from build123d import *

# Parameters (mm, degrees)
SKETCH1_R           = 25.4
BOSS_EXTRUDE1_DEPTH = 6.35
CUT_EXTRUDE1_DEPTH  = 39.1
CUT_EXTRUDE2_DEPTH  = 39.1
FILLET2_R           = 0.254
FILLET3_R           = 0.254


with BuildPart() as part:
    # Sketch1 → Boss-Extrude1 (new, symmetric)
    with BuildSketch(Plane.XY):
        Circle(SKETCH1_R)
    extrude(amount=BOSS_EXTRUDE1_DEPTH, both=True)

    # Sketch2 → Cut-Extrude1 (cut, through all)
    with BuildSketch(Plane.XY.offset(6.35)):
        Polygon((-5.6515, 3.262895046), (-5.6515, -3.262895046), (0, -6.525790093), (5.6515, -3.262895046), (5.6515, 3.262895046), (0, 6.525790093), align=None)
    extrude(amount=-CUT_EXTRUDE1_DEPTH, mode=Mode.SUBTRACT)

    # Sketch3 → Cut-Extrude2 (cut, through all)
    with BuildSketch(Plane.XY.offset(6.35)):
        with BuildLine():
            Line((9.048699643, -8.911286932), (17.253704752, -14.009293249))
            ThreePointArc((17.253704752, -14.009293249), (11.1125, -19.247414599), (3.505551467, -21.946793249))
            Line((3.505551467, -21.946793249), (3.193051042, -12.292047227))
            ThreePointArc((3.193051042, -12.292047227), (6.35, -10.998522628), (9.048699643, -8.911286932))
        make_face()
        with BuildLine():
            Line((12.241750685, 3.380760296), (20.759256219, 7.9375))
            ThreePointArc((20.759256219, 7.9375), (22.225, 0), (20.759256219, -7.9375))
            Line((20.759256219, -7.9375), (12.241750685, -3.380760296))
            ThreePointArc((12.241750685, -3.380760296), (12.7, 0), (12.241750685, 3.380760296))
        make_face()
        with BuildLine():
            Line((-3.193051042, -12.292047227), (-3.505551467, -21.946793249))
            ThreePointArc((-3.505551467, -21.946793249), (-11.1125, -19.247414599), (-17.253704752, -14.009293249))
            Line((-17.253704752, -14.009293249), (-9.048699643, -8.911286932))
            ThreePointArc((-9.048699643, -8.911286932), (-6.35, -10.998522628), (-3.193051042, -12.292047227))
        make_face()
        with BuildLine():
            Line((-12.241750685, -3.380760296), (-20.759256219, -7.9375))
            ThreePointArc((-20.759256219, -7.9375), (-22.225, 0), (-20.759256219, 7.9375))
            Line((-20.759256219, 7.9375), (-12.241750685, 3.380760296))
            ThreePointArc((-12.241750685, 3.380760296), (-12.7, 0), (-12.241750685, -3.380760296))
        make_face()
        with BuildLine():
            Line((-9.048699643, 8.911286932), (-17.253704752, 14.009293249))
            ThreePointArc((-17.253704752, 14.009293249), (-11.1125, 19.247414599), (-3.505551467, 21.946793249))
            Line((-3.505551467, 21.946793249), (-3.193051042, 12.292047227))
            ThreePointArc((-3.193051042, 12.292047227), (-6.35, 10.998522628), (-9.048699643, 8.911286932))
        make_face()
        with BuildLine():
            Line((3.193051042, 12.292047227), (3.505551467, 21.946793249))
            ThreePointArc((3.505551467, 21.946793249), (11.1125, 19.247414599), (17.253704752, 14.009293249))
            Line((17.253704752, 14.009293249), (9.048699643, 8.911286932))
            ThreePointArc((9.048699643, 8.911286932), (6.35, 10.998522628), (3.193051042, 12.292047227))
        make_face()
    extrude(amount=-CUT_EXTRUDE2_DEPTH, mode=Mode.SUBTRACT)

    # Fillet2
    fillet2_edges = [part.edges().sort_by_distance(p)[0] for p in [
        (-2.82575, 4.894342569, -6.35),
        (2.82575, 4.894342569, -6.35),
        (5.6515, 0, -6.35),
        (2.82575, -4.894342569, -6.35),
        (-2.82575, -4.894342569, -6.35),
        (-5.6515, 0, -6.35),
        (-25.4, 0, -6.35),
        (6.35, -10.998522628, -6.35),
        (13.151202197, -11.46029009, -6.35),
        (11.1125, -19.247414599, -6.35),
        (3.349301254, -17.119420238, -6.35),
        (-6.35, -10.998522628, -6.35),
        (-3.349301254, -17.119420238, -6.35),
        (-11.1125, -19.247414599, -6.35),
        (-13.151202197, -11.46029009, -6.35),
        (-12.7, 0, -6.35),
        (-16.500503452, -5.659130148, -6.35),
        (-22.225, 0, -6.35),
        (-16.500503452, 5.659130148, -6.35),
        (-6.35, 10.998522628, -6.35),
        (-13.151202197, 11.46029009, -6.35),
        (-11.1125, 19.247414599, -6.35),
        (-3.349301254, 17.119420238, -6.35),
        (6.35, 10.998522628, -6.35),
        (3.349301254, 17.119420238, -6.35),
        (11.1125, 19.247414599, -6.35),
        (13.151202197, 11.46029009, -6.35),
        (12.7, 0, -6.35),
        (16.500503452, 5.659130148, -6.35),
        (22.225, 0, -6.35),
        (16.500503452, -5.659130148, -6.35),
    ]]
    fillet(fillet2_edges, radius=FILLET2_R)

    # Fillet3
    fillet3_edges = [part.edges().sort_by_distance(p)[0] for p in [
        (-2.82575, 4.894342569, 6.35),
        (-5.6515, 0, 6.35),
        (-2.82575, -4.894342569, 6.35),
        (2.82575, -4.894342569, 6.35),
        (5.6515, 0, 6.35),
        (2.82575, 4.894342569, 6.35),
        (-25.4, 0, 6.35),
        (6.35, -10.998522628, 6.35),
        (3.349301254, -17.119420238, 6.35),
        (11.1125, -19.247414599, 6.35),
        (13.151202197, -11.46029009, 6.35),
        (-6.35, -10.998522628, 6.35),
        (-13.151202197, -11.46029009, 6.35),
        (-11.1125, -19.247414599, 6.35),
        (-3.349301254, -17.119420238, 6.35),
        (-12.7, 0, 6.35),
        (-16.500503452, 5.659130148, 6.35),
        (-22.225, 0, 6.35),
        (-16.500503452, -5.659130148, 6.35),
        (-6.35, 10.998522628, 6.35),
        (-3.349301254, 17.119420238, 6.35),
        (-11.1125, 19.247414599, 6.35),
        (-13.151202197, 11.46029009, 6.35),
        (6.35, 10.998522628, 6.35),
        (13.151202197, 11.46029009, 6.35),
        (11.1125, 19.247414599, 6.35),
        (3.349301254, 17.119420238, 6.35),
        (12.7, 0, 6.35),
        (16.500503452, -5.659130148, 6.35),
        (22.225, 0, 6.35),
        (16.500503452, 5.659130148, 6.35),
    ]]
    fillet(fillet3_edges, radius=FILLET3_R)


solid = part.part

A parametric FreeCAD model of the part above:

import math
import FreeCAD as App
import Part
import Sketcher

V = App.Vector
Q = App.Units.Quantity


def edges_at(feature, points):
    """Names of the edges that pass closest to the given points."""
    edges = feature.Shape.Edges
    near = lambda p: min(range(len(edges)), key=lambda i: edges[i].distToShape(Part.Vertex(*p))[0])
    return sorted({f"Edge{near(p) + 1}" for p in points})


def add_polygon(sketch, points):
    """Adds a closed chain of lines whose ends are joined by coincident constraints."""
    first, n = sketch.GeometryCount, len(points)
    for a, b in zip(points, points[1:] + points[:1]):
        sketch.addGeometry(Part.LineSegment(App.Vector(*a, 0), App.Vector(*b, 0)), False)
    for i in range(n):
        sketch.addConstraint(Sketcher.Constraint("Coincident", first + i, 2, first + (i + 1) % n, 1))

doc = App.newDocument("Part")
body = doc.addObject("PartDesign::Body", "Body")

# Sketch on XY plane
sketch1 = body.newObject("Sketcher::SketchObject", "Sketch")
sketch1.AttachmentSupport = (doc.getObject("XY_Plane"), [""])
sketch1.MapMode = "FlatFace"
sketch1.addGeometry(Part.Circle(V(0, 0, 0), V(0, 0, 1), 25.4), False)
sketch1.addConstraint([
    Sketcher.Constraint("Coincident", 0, 3, -1, 1),
    Sketcher.Constraint("Diameter", 0, Q("2 in")),
])
pad1 = body.newObject("PartDesign::Pad", "Pad")
pad1.Profile = sketch1
pad1.Length = Q("0.5 in")
pad1.Midplane = True

# Sketch on XY plane
sketch2 = body.newObject("Sketcher::SketchObject", "Sketch001")
sketch2.AttachmentSupport = (doc.getObject("XY_Plane"), [""])
sketch2.MapMode = "FlatFace"
sketch2.AttachmentOffset = App.Placement(V(0, 0, 0.25 * 25.4), App.Rotation())
add_polygon(sketch2, [(-5.6515, 3.262895), (-5.6515, -3.262895), (0, -6.52579), (5.6515, -3.262895), (5.6515, 3.262895), (0, 6.52579)])  # lines 0-5
sketch2.addConstraint([
    Sketcher.Constraint("Vertical", 0),
    Sketcher.Constraint("Vertical", 3),
    Sketcher.Constraint("Symmetric", 0, 2, 3, 2, -1, 1),
    Sketcher.Constraint("Symmetric", 1, 2, 4, 2, -1, 1),
    Sketcher.Constraint("PointOnObject", 1, 2, -2),
    Sketcher.Constraint("Parallel", 2, 5),
    Sketcher.Constraint("Horizontal", 0, 2, 2, 2),
    Sketcher.Constraint("Angle", 1, Q("-30 deg")),
    Sketcher.Constraint("DistanceX", 0, 2, 2, 2, Q("0.445 in")),
    Sketcher.Constraint("DistanceY", 0, 2, 0, 1, Q("6.52579 mm")),
])
pocket1 = body.newObject("PartDesign::Pocket", "Pocket")
pocket1.Profile = sketch2
pocket1.Type = "ThroughAll"

# Sketch on XY plane
sketch3 = body.newObject("Sketcher::SketchObject", "Sketch002")
sketch3.AttachmentSupport = (doc.getObject("XY_Plane"), [""])
sketch3.MapMode = "FlatFace"
sketch3.AttachmentOffset = App.Placement(V(0, 0, 0.25 * 25.4), App.Rotation())
sketch3.addGeometry([
    Part.LineSegment(V(17.253705, -14.009293, 0), V(9.0487, -8.911287, 0)),  # 0
    Part.ArcOfCircle(Part.Circle(V(0, 0, 0), V(0, 0, 1), 12.7), math.radians(-75.438364), math.radians(-44.561636)),  # 1
    Part.LineSegment(V(3.193051, -12.292047, 0), V(3.505551, -21.946793, 0)),  # 2
    Part.ArcOfCircle(Part.Circle(V(0, 0, 0), V(0, 0, 1), 22.225), math.radians(-80.924832), math.radians(-39.075168)),  # 3
    Part.LineSegment(V(20.759256, 7.9375, 0), V(12.241751, 3.38076, 0)),  # 4
    Part.ArcOfCircle(Part.Circle(V(0, 0, 0), V(0, 0, 1), 12.7), math.radians(-15.438364), math.radians(15.438364)),  # 5
    Part.LineSegment(V(12.241751, -3.38076, 0), V(20.759256, -7.9375, 0)),  # 6
    Part.ArcOfCircle(Part.Circle(V(0, 0, 0), V(0, 0, 1), 22.225), math.radians(-20.924832), math.radians(20.924832)),  # 7
    Part.LineSegment(V(-3.505551, -21.946793, 0), V(-3.193051, -12.292047, 0)),  # 8
    Part.ArcOfCircle(Part.Circle(V(0, 0, 0), V(0, 0, 1), 12.7), math.radians(-135.438364), math.radians(-104.561636)),  # 9
    Part.LineSegment(V(-9.0487, -8.911287, 0), V(-17.253705, -14.009293, 0)),  # 10
    Part.ArcOfCircle(Part.Circle(V(0, 0, 0), V(0, 0, 1), 22.225), math.radians(-140.924832), math.radians(-99.075168)),  # 11
    Part.LineSegment(V(-20.759256, -7.9375, 0), V(-12.241751, -3.38076, 0)),  # 12
    Part.ArcOfCircle(Part.Circle(V(0, 0, 0), V(0, 0, 1), 12.7), math.radians(164.561636), math.radians(195.438364)),  # 13
    Part.LineSegment(V(-12.241751, 3.38076, 0), V(-20.759256, 7.9375, 0)),  # 14
    Part.ArcOfCircle(Part.Circle(V(0, 0, 0), V(0, 0, 1), 22.225), math.radians(159.075168), math.radians(200.924832)),  # 15
    Part.LineSegment(V(-17.253705, 14.009293, 0), V(-9.0487, 8.911287, 0)),  # 16
    Part.ArcOfCircle(Part.Circle(V(0, 0, 0), V(0, 0, 1), 12.7), math.radians(104.561636), math.radians(135.438364)),  # 17
    Part.LineSegment(V(-3.193051, 12.292047, 0), V(-3.505551, 21.946793, 0)),  # 18
    Part.ArcOfCircle(Part.Circle(V(0, 0, 0), V(0, 0, 1), 22.225), math.radians(99.075168), math.radians(140.924832)),  # 19
    Part.LineSegment(V(3.505551, 21.946793, 0), V(3.193051, 12.292047, 0)),  # 20
    Part.ArcOfCircle(Part.Circle(V(0, 0, 0), V(0, 0, 1), 12.7), math.radians(44.561636), math.radians(75.438364)),  # 21
    Part.LineSegment(V(9.0487, 8.911287, 0), V(17.253705, 14.009293, 0)),  # 22
    Part.ArcOfCircle(Part.Circle(V(0, 0, 0), V(0, 0, 1), 22.225), math.radians(39.075168), math.radians(80.924832)),  # 23
], False)
sketch3.addConstraint([
    Sketcher.Constraint("Coincident", 0, 2, 1, 2),
    Sketcher.Constraint("Coincident", 1, 1, 2, 1),
    Sketcher.Constraint("Coincident", 2, 2, 3, 1),
    Sketcher.Constraint("Coincident", 3, 2, 0, 1),
    Sketcher.Constraint("Coincident", 4, 2, 5, 2),
    Sketcher.Constraint("Coincident", 5, 1, 6, 1),
    Sketcher.Constraint("Coincident", 6, 2, 7, 1),
    Sketcher.Constraint("Coincident", 7, 2, 4, 1),
    Sketcher.Constraint("Coincident", 8, 2, 9, 2),
    Sketcher.Constraint("Coincident", 9, 1, 10, 1),
    Sketcher.Constraint("Coincident", 10, 2, 11, 1),
    Sketcher.Constraint("Coincident", 11, 2, 8, 1),
    Sketcher.Constraint("Coincident", 12, 2, 13, 2),
    Sketcher.Constraint("Coincident", 13, 1, 14, 1),
    Sketcher.Constraint("Coincident", 14, 2, 15, 1),
    Sketcher.Constraint("Coincident", 15, 2, 12, 1),
    Sketcher.Constraint("Coincident", 16, 2, 17, 2),
    Sketcher.Constraint("Coincident", 17, 1, 18, 1),
    Sketcher.Constraint("Coincident", 18, 2, 19, 1),
    Sketcher.Constraint("Coincident", 19, 2, 16, 1),
    Sketcher.Constraint("Coincident", 20, 2, 21, 2),
    Sketcher.Constraint("Coincident", 21, 1, 22, 1),
    Sketcher.Constraint("Coincident", 22, 2, 23, 1),
    Sketcher.Constraint("Coincident", 23, 2, 20, 1),
    Sketcher.Constraint("Coincident", 1, 3, -1, 1),
    Sketcher.Constraint("Coincident", 3, 3, -1, 1),
    Sketcher.Constraint("Coincident", 5, 3, -1, 1),
    Sketcher.Constraint("Coincident", 7, 3, -1, 1),
    Sketcher.Constraint("Coincident", 9, 3, -1, 1),
    Sketcher.Constraint("Coincident", 11, 3, -1, 1),
    Sketcher.Constraint("Coincident", 13, 3, -1, 1),
    Sketcher.Constraint("Coincident", 15, 3, -1, 1),
    Sketcher.Constraint("Coincident", 17, 3, -1, 1),
    Sketcher.Constraint("Coincident", 19, 3, -1, 1),
    Sketcher.Constraint("Coincident", 21, 3, -1, 1),
    Sketcher.Constraint("Coincident", 23, 3, -1, 1),
    Sketcher.Constraint("Equal", 1, 5),
    Sketcher.Constraint("Equal", 3, 7),
    Sketcher.Constraint("Equal", 5, 9),
    Sketcher.Constraint("Equal", 7, 11),
    Sketcher.Constraint("Equal", 9, 13),
    Sketcher.Constraint("Equal", 11, 15),
    Sketcher.Constraint("Equal", 13, 17),
    Sketcher.Constraint("Equal", 15, 19),
    Sketcher.Constraint("Equal", 17, 21),
    Sketcher.Constraint("Equal", 19, 23),
    Sketcher.Constraint("Parallel", 4, 12),
    Sketcher.Constraint("Parallel", 6, 14),
    Sketcher.Constraint("Parallel", 0, 16),
    Sketcher.Constraint("Parallel", 2, 18),
    Sketcher.Constraint("Parallel", 8, 20),
    Sketcher.Constraint("Parallel", 10, 22),
    Sketcher.Constraint("Horizontal", 1, 1, 8, 2),
    Sketcher.Constraint("Horizontal", 0, 2, 9, 1),
    Sketcher.Constraint("Horizontal", 3, 2, 10, 2),
    Sketcher.Constraint("Horizontal", 2, 2, 11, 2),
    Sketcher.Constraint("Horizontal", 5, 1, 12, 2),
    Sketcher.Constraint("Horizontal", 4, 2, 13, 1),
    Sketcher.Constraint("Horizontal", 7, 2, 14, 2),
    Sketcher.Constraint("Horizontal", 17, 1, 20, 2),
    Sketcher.Constraint("Horizontal", 16, 2, 21, 1),
    Sketcher.Constraint("Vertical", 4, 2, 5, 1),
    Sketcher.Constraint("Vertical", 9, 1, 16, 2),
    Sketcher.Constraint("Vertical", 8, 2, 17, 1),
    Sketcher.Constraint("Equal", 0, 2),
    Sketcher.Constraint("Equal", 2, 4),
    Sketcher.Constraint("Radius", 1, Q("0.5 in")),
    Sketcher.Constraint("Radius", 3, Q("0.875 in")),
    Sketcher.Constraint("DistanceY", 6, 2, -1, 1, Q("0.3125 in")),
    Sketcher.Constraint("DistanceY", 2, 2, 3, 2, Q("0.3125 in")),
    Sketcher.Constraint("DistanceX", -1, 1, 0, 2, Q("9.0487 mm")),
    Sketcher.Constraint("DistanceX", 1, 1, 2, 2, Q("0.3125 mm")),
])
pocket2 = body.newObject("PartDesign::Pocket", "Pocket001")
pocket2.Profile = sketch3
pocket2.Type = "ThroughAll"
doc.recompute()

fillet = body.newObject("PartDesign::Fillet", "Fillet")
fillet.Base = (pocket2, edges_at(pocket2, [
    (-2.826, 4.894, -6.35),
    (2.826, 4.894, -6.35),
    (5.652, 0, -6.35),
    (2.826, -4.894, -6.35),
    (-2.826, -4.894, -6.35),
    (-5.652, 0, -6.35),
    (-25.4, 0, -6.35),
    (6.35, -10.999, -6.35),
    (13.151, -11.46, -6.35),
    (11.113, -19.247, -6.35),
    (3.349, -17.119, -6.35),
    (-6.35, -10.999, -6.35),
    (-3.349, -17.119, -6.35),
    (-11.113, -19.247, -6.35),
    (-13.151, -11.46, -6.35),
    (-12.7, 0, -6.35),
    (-16.501, -5.659, -6.35),
    (-22.225, 0, -6.35),
    (-16.501, 5.659, -6.35),
    (-6.35, 10.999, -6.35),
    (-13.151, 11.46, -6.35),
    (-11.113, 19.247, -6.35),
    (-3.349, 17.119, -6.35),
    (6.35, 10.999, -6.35),
    (3.349, 17.119, -6.35),
    (11.113, 19.247, -6.35),
    (13.151, 11.46, -6.35),
    (12.7, 0, -6.35),
    (16.501, 5.659, -6.35),
    (22.225, 0, -6.35),
    (16.501, -5.659, -6.35),
]))
fillet.Radius = Q("0.01 in")
doc.recompute()

fillet2 = body.newObject("PartDesign::Fillet", "Fillet001")
fillet2.Base = (fillet, edges_at(fillet, [
    (-2.826, 4.894, 6.35),
    (-5.652, 0, 6.35),
    (-2.826, -4.894, 6.35),
    (2.826, -4.894, 6.35),
    (5.652, 0, 6.35),
    (2.826, 4.894, 6.35),
    (-25.4, 0, 6.35),
    (6.35, -10.999, 6.35),
    (3.349, -17.119, 6.35),
    (11.113, -19.247, 6.35),
    (13.151, -11.46, 6.35),
    (-6.35, -10.999, 6.35),
    (-13.151, -11.46, 6.35),
    (-11.113, -19.247, 6.35),
    (-3.349, -17.119, 6.35),
    (-12.7, 0, 6.35),
    (-16.501, 5.659, 6.35),
    (-22.225, 0, 6.35),
    (-16.501, -5.659, 6.35),
    (-6.35, 10.999, 6.35),
    (-3.349, 17.119, 6.35),
    (-11.113, 19.247, 6.35),
    (-13.151, 11.46, 6.35),
    (6.35, 10.999, 6.35),
    (13.151, 11.46, 6.35),
    (11.113, 19.247, 6.35),
    (3.349, 17.119, 6.35),
    (12.7, 0, 6.35),
    (16.501, -5.659, 6.35),
    (22.225, 0, 6.35),
    (16.501, 5.659, 6.35),
]))
fillet2.Radius = Q("0.01 in")

doc.recompute()
